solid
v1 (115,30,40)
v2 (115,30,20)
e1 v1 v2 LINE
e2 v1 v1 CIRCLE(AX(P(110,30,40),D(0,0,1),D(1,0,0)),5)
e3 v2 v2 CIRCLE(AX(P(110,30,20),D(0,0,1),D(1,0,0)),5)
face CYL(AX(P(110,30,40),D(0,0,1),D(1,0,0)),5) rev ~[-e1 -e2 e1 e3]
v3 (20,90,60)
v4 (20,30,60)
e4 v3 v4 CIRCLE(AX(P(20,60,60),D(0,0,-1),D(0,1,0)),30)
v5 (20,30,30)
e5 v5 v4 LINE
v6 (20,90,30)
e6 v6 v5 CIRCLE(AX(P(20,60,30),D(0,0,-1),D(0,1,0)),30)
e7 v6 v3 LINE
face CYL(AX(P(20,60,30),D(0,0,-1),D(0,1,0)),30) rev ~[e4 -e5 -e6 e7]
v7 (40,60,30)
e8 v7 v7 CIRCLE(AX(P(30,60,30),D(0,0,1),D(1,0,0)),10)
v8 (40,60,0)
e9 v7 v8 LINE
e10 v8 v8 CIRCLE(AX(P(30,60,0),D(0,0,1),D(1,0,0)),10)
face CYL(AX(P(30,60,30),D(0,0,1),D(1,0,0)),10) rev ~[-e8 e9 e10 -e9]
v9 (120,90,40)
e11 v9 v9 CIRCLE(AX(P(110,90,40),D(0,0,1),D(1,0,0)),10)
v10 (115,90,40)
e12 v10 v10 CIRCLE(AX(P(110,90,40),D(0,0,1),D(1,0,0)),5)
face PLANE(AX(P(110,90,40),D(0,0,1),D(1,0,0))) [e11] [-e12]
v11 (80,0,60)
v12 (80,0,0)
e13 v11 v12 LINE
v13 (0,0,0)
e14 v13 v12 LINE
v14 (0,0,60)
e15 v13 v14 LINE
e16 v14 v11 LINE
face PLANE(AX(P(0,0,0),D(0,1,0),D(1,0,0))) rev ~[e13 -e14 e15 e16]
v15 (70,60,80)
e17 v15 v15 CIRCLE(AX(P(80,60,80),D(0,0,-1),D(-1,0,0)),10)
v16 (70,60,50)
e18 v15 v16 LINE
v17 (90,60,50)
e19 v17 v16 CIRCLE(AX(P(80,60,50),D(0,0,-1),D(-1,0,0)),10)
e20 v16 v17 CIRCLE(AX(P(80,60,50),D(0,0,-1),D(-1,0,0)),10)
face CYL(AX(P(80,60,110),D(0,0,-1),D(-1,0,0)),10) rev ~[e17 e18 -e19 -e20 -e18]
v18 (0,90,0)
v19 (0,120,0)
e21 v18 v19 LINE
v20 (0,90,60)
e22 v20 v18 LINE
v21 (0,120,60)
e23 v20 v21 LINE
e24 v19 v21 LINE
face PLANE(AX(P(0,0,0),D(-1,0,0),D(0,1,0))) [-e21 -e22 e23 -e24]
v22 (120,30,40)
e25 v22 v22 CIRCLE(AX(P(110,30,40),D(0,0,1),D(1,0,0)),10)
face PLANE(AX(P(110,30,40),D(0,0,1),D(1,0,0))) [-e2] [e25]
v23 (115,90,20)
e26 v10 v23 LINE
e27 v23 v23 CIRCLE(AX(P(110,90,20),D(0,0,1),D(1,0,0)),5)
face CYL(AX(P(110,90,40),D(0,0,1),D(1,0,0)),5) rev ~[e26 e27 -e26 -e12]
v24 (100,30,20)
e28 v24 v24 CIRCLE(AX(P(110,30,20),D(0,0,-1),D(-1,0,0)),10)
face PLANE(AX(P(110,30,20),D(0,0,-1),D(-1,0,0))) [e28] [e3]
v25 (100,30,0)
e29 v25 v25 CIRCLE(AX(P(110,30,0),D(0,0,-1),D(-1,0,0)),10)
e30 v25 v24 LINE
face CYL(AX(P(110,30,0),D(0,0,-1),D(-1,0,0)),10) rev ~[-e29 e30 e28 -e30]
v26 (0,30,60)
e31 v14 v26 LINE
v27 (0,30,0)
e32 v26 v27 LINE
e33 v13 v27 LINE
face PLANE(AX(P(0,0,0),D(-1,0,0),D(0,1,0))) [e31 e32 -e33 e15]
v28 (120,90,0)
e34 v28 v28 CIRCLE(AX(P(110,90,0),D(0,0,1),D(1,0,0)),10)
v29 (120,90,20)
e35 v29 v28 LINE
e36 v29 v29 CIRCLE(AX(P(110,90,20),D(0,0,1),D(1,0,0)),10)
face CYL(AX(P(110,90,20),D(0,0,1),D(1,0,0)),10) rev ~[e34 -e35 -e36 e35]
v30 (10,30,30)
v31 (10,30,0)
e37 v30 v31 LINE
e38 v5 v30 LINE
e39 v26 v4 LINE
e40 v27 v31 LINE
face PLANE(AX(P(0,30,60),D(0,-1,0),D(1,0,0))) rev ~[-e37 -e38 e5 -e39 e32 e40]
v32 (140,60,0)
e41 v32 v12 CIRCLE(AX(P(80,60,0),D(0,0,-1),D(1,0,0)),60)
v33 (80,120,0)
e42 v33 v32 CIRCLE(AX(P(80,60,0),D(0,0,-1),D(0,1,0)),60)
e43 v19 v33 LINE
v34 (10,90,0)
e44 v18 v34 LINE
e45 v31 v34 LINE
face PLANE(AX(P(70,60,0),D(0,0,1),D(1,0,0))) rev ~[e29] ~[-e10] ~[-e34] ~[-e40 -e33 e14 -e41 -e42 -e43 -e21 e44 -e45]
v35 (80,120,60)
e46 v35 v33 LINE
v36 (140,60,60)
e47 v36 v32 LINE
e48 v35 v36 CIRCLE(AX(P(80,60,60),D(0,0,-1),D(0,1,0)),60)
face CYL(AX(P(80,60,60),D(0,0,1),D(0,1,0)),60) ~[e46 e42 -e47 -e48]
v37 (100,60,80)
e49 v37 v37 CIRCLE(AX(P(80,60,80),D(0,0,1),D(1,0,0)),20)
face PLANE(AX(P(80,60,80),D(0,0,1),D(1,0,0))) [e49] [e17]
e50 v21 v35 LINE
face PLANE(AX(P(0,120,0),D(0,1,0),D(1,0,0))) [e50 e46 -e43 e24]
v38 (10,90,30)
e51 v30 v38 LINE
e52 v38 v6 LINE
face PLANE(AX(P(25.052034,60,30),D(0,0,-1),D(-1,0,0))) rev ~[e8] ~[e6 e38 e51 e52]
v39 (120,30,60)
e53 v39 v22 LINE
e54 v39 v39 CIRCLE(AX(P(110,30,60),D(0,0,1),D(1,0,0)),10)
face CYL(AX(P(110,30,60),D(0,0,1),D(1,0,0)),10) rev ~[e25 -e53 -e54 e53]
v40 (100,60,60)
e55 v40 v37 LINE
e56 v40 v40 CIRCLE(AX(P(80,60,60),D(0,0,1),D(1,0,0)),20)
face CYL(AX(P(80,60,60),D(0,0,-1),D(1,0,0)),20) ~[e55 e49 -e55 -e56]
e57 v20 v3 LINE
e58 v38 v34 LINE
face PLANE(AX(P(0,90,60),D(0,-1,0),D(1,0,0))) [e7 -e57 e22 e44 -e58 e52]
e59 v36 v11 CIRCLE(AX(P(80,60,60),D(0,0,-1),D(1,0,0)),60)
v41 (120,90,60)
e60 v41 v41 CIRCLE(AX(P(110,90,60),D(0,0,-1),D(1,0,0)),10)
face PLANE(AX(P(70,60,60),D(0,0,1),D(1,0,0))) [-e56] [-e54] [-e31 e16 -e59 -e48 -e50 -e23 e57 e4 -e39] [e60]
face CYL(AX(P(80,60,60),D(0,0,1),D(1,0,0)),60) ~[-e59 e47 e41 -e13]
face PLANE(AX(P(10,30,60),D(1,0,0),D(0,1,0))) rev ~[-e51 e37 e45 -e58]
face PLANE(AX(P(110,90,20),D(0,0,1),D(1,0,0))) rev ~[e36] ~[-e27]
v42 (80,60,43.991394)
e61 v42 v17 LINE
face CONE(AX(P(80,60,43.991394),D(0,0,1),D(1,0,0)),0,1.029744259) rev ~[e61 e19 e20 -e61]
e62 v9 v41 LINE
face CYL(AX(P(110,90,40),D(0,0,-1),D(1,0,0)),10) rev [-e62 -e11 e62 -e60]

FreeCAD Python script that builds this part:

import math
import FreeCAD as App
import Part
import Sketcher
Q = App.Units.Quantity


def add_polygon(sketch, points):
    """Adds a closed chain of lines whose ends are joined by coincident constraints."""
    first, n = sketch.GeometryCount, len(points)
    for a, b in zip(points, points[1:] + points[:1]):
        sketch.addGeometry(Part.LineSegment(App.Vector(*a, 0), App.Vector(*b, 0)), False)
    for i in range(n):
        sketch.addConstraint(Sketcher.Constraint("Coincident", first + i, 2, first + (i + 1) % n, 1))

doc = App.newDocument("Part")
params = doc.addObject("Spreadsheet::Sheet", "Params")
for row, (alias, value) in enumerate([
    ("sketch1_width", "140 mm"),
    ("sketch1_height", "120 mm"),
    ("pad1_length", "60 mm"),
    ("sketch2_radius", "60 mm"),
    ("sketch2_width", "10 mm"),
    ("pocket1_length", "60 mm"),
    ("sketch3_radius", "30 mm"),
    ("sketch3_width", "10 mm"),
    ("pocket2_length", "60 mm"),
    ("sketch4_diameter", "20 mm"),
    ("pocket3_length", "60 mm"),
    ("sketch5_diameter", "20 mm"),
    ("pocket4_length", "60 mm"),
    ("sketch6_diameter", "20 mm"),
    ("pocket5_length", "60 mm"),
    ("sketch7_diameter", "10 mm"),
    ("pocket6_length", "60 mm"),
    ("sketch8_diameter", "20 mm"),
    ("pocket7_length", "20 mm"),
    ("sketch9_diameter", "10 mm"),
    ("pocket8_length", "47 mm"),
    ("sketch10_diameter", "20 mm"),
    ("pocket9_length", "20 mm"),
    ("sketch11_diameter", "40 mm"),
    ("pad2_length", "20 mm"),
    ("sketch12_diameter", "20 mm"),
    ("hole_diameter", "20 mm"),
    ("hole_depth", "30 mm"),
], start=1):
    params.set(f"A{row}", alias)
    params.set(f"B{row}", "=" + value)
    params.setAlias(f"B{row}", alias)

body = doc.addObject("PartDesign::Body", "Body")

sketch1 = body.newObject("Sketcher::SketchObject", "Sketch")
sketch1.AttachmentSupport = (doc.getObject("XY_Plane"), [""])
sketch1.MapMode = "FlatFace"
add_polygon(sketch1, [(0, 120), (0, 0), (140, 0), (140, 120)])
sketch1.addConstraint(Sketcher.Constraint("Vertical", 0))
sketch1.addConstraint(Sketcher.Constraint("Horizontal", 1))
sketch1.addConstraint(Sketcher.Constraint("Vertical", 2))
sketch1.addConstraint(Sketcher.Constraint("Horizontal", 3))
sketch1.addConstraint(Sketcher.Constraint("Coincident", 0, 2, -1, 1))
sketch1.addConstraint(Sketcher.Constraint("DistanceX", 1, 1, 1, 2, Q("140 mm")))
sketch1.addConstraint(Sketcher.Constraint("DistanceY", 0, 2, 0, 1, Q("120 mm")))
sketch1.setExpression("Constraints[9]", "Params.sketch1_width")
sketch1.setExpression("Constraints[10]", "Params.sketch1_height")
pad1 = body.newObject("PartDesign::Pad", "Pad")
pad1.Profile = sketch1
pad1.setExpression("Length", "Params.pad1_length")

sketch2 = body.newObject("Sketcher::SketchObject", "Sketch001")
sketch2.AttachmentSupport = (doc.getObject("XY_Plane"), [""])
sketch2.MapMode = "FlatFace"
sketch2.AttachmentOffset = App.Placement(App.Vector(0, 0, 60), App.Rotation())
sketch2.addGeometry(Part.LineSegment(App.Vector(140, 120, 0), App.Vector(80, 120, 0)), False)
sketch2.addGeometry(Part.ArcOfCircle(Part.Circle(App.Vector(80, 60, 0), App.Vector(0, 0, 1), 60), math.radians(0), math.radians(90)), False)
sketch2.addGeometry(Part.LineSegment(App.Vector(140, 60, 0), App.Vector(140, 120, 0)), False)
sketch2.addGeometry(Part.LineSegment(App.Vector(140, 0, 0), App.Vector(140, 60, 0)), False)
sketch2.addGeometry(Part.ArcOfCircle(Part.Circle(App.Vector(80, 60, 0), App.Vector(0, 0, 1), 60), math.radians(-90), math.radians(0)), False)
sketch2.addGeometry(Part.LineSegment(App.Vector(80, 0, 0), App.Vector(140, 0, 0)), False)
add_polygon(sketch2, [(0, 90), (0, 30), (10, 30), (10, 90)])
sketch2.addConstraint(Sketcher.Constraint("Tangent", 0, 2, 1, 2))
sketch2.addConstraint(Sketcher.Constraint("Tangent", 1, 1, 2, 1))
sketch2.addConstraint(Sketcher.Constraint("Coincident", 2, 2, 0, 1))
sketch2.addConstraint(Sketcher.Constraint("Tangent", 3, 2, 4, 2))
sketch2.addConstraint(Sketcher.Constraint("Tangent", 4, 1, 5, 1))
sketch2.addConstraint(Sketcher.Constraint("Coincident", 5, 2, 3, 1))
sketch2.addConstraint(Sketcher.Constraint("Horizontal", 0))
sketch2.addConstraint(Sketcher.Constraint("Vertical", 2))
sketch2.addConstraint(Sketcher.Constraint("Vertical", 3))
sketch2.addConstraint(Sketcher.Constraint("Horizontal", 5))
sketch2.addConstraint(Sketcher.Constraint("Vertical", 6))
sketch2.addConstraint(Sketcher.Constraint("Horizontal", 7))
sketch2.addConstraint(Sketcher.Constraint("Vertical", 8))
sketch2.addConstraint(Sketcher.Constraint("Horizontal", 9))
sketch2.addConstraint(Sketcher.Constraint("Coincident", 4, 3, 1, 3))
sketch2.addConstraint(Sketcher.Constraint("Equal", 1, 4))
sketch2.addConstraint(Sketcher.Constraint("PointOnObject", 4, 1, -1))
sketch2.addConstraint(Sketcher.Constraint("PointOnObject", 6, 2, -2))
sketch2.addConstraint(Sketcher.Constraint("Equal", 3, 6))
sketch2.addConstraint(Sketcher.Constraint("Radius", 1, Q("60 mm")))
sketch2.addConstraint(Sketcher.Constraint("DistanceX", 7, 1, 7, 2, Q("10 mm")))
sketch2.addConstraint(Sketcher.Constraint("DistanceX", -1, 1, 1, 3, Q("80 mm")))
sketch2.addConstraint(Sketcher.Constraint("DistanceY", -1, 1, 6, 2, Q("30 mm")))
sketch2.setExpression("Constraints[23]", "Params.sketch2_radius")
sketch2.setExpression("Constraints[24]", "Params.sketch2_width")
pocket1 = body.newObject("PartDesign::Pocket", "Pocket")
pocket1.Profile = sketch2
pocket1.setExpression("Length", "Params.pocket1_length")

sketch3 = body.newObject("Sketcher::SketchObject", "Sketch002")
sketch3.AttachmentSupport = (doc.getObject("XY_Plane"), [""])
sketch3.MapMode = "FlatFace"
sketch3.AttachmentOffset = App.Placement(App.Vector(0, 0, 30), App.Rotation())
sketch3.addGeometry(Part.ArcOfCircle(Part.Circle(App.Vector(20, 60, 0), App.Vector(0, 0, 1), 30), math.radians(-90), math.radians(90)), False)
sketch3.addGeometry(Part.LineSegment(App.Vector(20, 90, 0), App.Vector(10, 90, 0)), False)
sketch3.addGeometry(Part.LineSegment(App.Vector(10, 90, 0), App.Vector(10, 30, 0)), False)
sketch3.addGeometry(Part.LineSegment(App.Vector(10, 30, 0), App.Vector(20, 30, 0)), False)
sketch3.addConstraint(Sketcher.Constraint("Tangent", 0, 2, 1, 1))
sketch3.addConstraint(Sketcher.Constraint("Coincident", 1, 2, 2, 1))
sketch3.addConstraint(Sketcher.Constraint("Coincident", 2, 2, 3, 1))
sketch3.addConstraint(Sketcher.Constraint("Tangent", 3, 2, 0, 1))
sketch3.addConstraint(Sketcher.Constraint("Horizontal", 1))
sketch3.addConstraint(Sketcher.Constraint("Vertical", 2))
sketch3.addConstraint(Sketcher.Constraint("Horizontal", 3))
sketch3.addConstraint(Sketcher.Constraint("Radius", 0, Q("30 mm")))
sketch3.addConstraint(Sketcher.Constraint("DistanceX", 1, 2, 1, 1, Q("10 mm")))
sketch3.addConstraint(Sketcher.Constraint("DistanceX", -1, 1, 0, 3, Q("20 mm")))
sketch3.addConstraint(Sketcher.Constraint("DistanceY", -1, 1, 0, 3, Q("60 mm")))
sketch3.setExpression("Constraints[7]", "Params.sketch3_radius")
sketch3.setExpression("Constraints[8]", "Params.sketch3_width")
pocket2 = body.newObject("PartDesign::Pocket", "Pocket001")
pocket2.Profile = sketch3
pocket2.setExpression("Length", "Params.pocket2_length")
pocket2.Reversed = True

sketch4 = body.newObject("Sketcher::SketchObject", "Sketch003")
sketch4.AttachmentSupport = (doc.getObject("XY_Plane"), [""])
sketch4.MapMode = "FlatFace"
sketch4.AttachmentOffset = App.Placement(App.Vector(0, 0, 30), App.Rotation())
sketch4.addGeometry(Part.Circle(App.Vector(30, 60, 0), App.Vector(0, 0, 1), 10), False)
sketch4.addConstraint(Sketcher.Constraint("Diameter", 0, Q("20 mm")))
sketch4.addConstraint(Sketcher.Constraint("DistanceX", -1, 1, 0, 3, Q("30 mm")))
sketch4.addConstraint(Sketcher.Constraint("DistanceY", -1, 1, 0, 3, Q("60 mm")))
sketch4.setExpression("Constraints[0]", "Params.sketch4_diameter")
pocket3 = body.newObject("PartDesign::Pocket", "Pocket002")
pocket3.Profile = sketch4
pocket3.setExpression("Length", "Params.pocket3_length")

sketch5 = body.newObject("Sketcher::SketchObject", "Sketch004")
sketch5.AttachmentSupport = (doc.getObject("XY_Plane"), [""])
sketch5.MapMode = "FlatFace"
sketch5.AttachmentOffset = App.Placement(App.Vector(0, 0, 20), App.Rotation())
sketch5.addGeometry(Part.Circle(App.Vector(110, 90, 0), App.Vector(0, 0, 1), 10), False)
sketch5.addConstraint(Sketcher.Constraint("Diameter", 0, Q("20 mm")))
sketch5.addConstraint(Sketcher.Constraint("DistanceX", -1, 1, 0, 3, Q("110 mm")))
sketch5.addConstraint(Sketcher.Constraint("DistanceY", -1, 1, 0, 3, Q("90 mm")))
sketch5.setExpression("Constraints[0]", "Params.sketch5_diameter")
pocket4 = body.newObject("PartDesign::Pocket", "Pocket003")
pocket4.Profile = sketch5
pocket4.setExpression("Length", "Params.pocket4_length")

sketch6 = body.newObject("Sketcher::SketchObject", "Sketch005")
sketch6.AttachmentSupport = (doc.getObject("XY_Plane"), [""])
sketch6.MapMode = "FlatFace"
sketch6.AttachmentOffset = App.Placement(App.Vector(0, 0, 40), App.Rotation())
sketch6.addGeometry(Part.Circle(App.Vector(110, 90, 0), App.Vector(0, 0, 1), 10), False)
sketch6.addConstraint(Sketcher.Constraint("Diameter", 0, Q("20 mm")))
sketch6.addConstraint(Sketcher.Constraint("DistanceX", -1, 1, 0, 3, Q("110 mm")))
sketch6.addConstraint(Sketcher.Constraint("DistanceY", -1, 1, 0, 3, Q("90 mm")))
sketch6.setExpression("Constraints[0]", "Params.sketch6_diameter")
pocket5 = body.newObject("PartDesign::Pocket", "Pocket004")
pocket5.Profile = sketch6
pocket5.setExpression("Length", "Params.pocket5_length")
pocket5.Reversed = True

sketch7 = body.newObject("Sketcher::SketchObject", "Sketch006")
sketch7.AttachmentSupport = (doc.getObject("XY_Plane"), [""])
sketch7.MapMode = "FlatFace"
sketch7.AttachmentOffset = App.Placement(App.Vector(0, 0, 40), App.Rotation())
sketch7.addGeometry(Part.Circle(App.Vector(110, 90, 0), App.Vector(0, 0, 1), 5), False)
sketch7.addConstraint(Sketcher.Constraint("Diameter", 0, Q("10 mm")))
sketch7.addConstraint(Sketcher.Constraint("DistanceX", -1, 1, 0, 3, Q("110 mm")))
sketch7.addConstraint(Sketcher.Constraint("DistanceY", -1, 1, 0, 3, Q("90 mm")))
sketch7.setExpression("Constraints[0]", "Params.sketch7_diameter")
pocket6 = body.newObject("PartDesign::Pocket", "Pocket005")
pocket6.Profile = sketch7
pocket6.setExpression("Length", "Params.pocket6_length")

sketch8 = body.newObject("Sketcher::SketchObject", "Sketch007")
sketch8.AttachmentSupport = (doc.getObject("XY_Plane"), [""])
sketch8.MapMode = "FlatFace"
sketch8.AttachmentOffset = App.Placement(App.Vector(0, 0, 60), App.Rotation())
sketch8.addGeometry(Part.Circle(App.Vector(110, 30, 0), App.Vector(0, 0, 1), 10), False)
sketch8.addConstraint(Sketcher.Constraint("Diameter", 0, Q("20 mm")))
sketch8.addConstraint(Sketcher.Constraint("DistanceX", -1, 1, 0, 3, Q("110 mm")))
sketch8.addConstraint(Sketcher.Constraint("DistanceY", -1, 1, 0, 3, Q("30 mm")))
sketch8.setExpression("Constraints[0]", "Params.sketch8_diameter")
pocket7 = body.newObject("PartDesign::Pocket", "Pocket006")
pocket7.Profile = sketch8
pocket7.setExpression("Length", "Params.pocket7_length")

sketch9 = body.newObject("Sketcher::SketchObject", "Sketch008")
sketch9.AttachmentSupport = (doc.getObject("XY_Plane"), [""])
sketch9.MapMode = "FlatFace"
sketch9.AttachmentOffset = App.Placement(App.Vector(0, 0, 40), App.Rotation())
sketch9.addGeometry(Part.Circle(App.Vector(110, 30, 0), App.Vector(0, 0, 1), 5), False)
sketch9.addConstraint(Sketcher.Constraint("Diameter", 0, Q("10 mm")))
sketch9.addConstraint(Sketcher.Constraint("DistanceX", -1, 1, 0, 3, Q("110 mm")))
sketch9.addConstraint(Sketcher.Constraint("DistanceY", -1, 1, 0, 3, Q("30 mm")))
sketch9.setExpression("Constraints[0]", "Params.sketch9_diameter")
pocket8 = body.newObject("PartDesign::Pocket", "Pocket007")
pocket8.Profile = sketch9
pocket8.setExpression("Length", "Params.pocket8_length")

sketch10 = body.newObject("Sketcher::SketchObject", "Sketch009")
sketch10.AttachmentSupport = (doc.getObject("XY_Plane"), [""])
sketch10.MapMode = "FlatFace"
sketch10.addGeometry(Part.Circle(App.Vector(110, 30, 0), App.Vector(0, 0, 1), 10), False)
sketch10.addConstraint(Sketcher.Constraint("Diameter", 0, Q("20 mm")))
sketch10.addConstraint(Sketcher.Constraint("DistanceX", -1, 1, 0, 3, Q("110 mm")))
sketch10.addConstraint(Sketcher.Constraint("DistanceY", -1, 1, 0, 3, Q("30 mm")))
sketch10.setExpression("Constraints[0]", "Params.sketch10_diameter")
pocket9 = body.newObject("PartDesign::Pocket", "Pocket008")
pocket9.Profile = sketch10
pocket9.setExpression("Length", "Params.pocket9_length")
pocket9.Reversed = True

sketch11 = body.newObject("Sketcher::SketchObject", "Sketch010")
sketch11.AttachmentSupport = (doc.getObject("XY_Plane"), [""])
sketch11.MapMode = "FlatFace"
sketch11.AttachmentOffset = App.Placement(App.Vector(0, 0, 60), App.Rotation())
sketch11.addGeometry(Part.Circle(App.Vector(80, 60, 0), App.Vector(0, 0, 1), 20), False)
sketch11.addConstraint(Sketcher.Constraint("Diameter", 0, Q("40 mm")))
sketch11.addConstraint(Sketcher.Constraint("DistanceX", -1, 1, 0, 3, Q("80 mm")))
sketch11.addConstraint(Sketcher.Constraint("DistanceY", -1, 1, 0, 3, Q("60 mm")))
sketch11.setExpression("Constraints[0]", "Params.sketch11_diameter")
pad2 = body.newObject("PartDesign::Pad", "Pad001")
pad2.Profile = sketch11
pad2.setExpression("Length", "Params.pad2_length")

sketch12 = body.newObject("Sketcher::SketchObject", "Sketch011")
sketch12.AttachmentSupport = (doc.getObject("XY_Plane"), [""])
sketch12.MapMode = "FlatFace"
sketch12.AttachmentOffset = App.Placement(App.Vector(0, 0, 80), App.Rotation())
sketch12.addGeometry(Part.Circle(App.Vector(80, 60, 0), App.Vector(0, 0, 1), 10), False)
sketch12.addConstraint(Sketcher.Constraint("Diameter", 0, Q("20 mm")))
sketch12.addConstraint(Sketcher.Constraint("DistanceX", -1, 1, 0, 3, Q("80 mm")))
sketch12.addConstraint(Sketcher.Constraint("DistanceY", -1, 1, 0, 3, Q("60 mm")))
sketch12.setExpression("Constraints[0]", "Params.sketch12_diameter")
doc.recompute()
hole = body.newObject("PartDesign::Hole", "Hole")
hole.Profile = sketch12
hole.ThreadType = "None"
hole.setExpression("Diameter", "Params.hole_diameter")
hole.DepthType = "Dimension"
hole.setExpression("Depth", "Params.hole_depth")
hole.DrillPoint = "Angled"
hole.DrillPointAngle = 118

doc.recompute()
